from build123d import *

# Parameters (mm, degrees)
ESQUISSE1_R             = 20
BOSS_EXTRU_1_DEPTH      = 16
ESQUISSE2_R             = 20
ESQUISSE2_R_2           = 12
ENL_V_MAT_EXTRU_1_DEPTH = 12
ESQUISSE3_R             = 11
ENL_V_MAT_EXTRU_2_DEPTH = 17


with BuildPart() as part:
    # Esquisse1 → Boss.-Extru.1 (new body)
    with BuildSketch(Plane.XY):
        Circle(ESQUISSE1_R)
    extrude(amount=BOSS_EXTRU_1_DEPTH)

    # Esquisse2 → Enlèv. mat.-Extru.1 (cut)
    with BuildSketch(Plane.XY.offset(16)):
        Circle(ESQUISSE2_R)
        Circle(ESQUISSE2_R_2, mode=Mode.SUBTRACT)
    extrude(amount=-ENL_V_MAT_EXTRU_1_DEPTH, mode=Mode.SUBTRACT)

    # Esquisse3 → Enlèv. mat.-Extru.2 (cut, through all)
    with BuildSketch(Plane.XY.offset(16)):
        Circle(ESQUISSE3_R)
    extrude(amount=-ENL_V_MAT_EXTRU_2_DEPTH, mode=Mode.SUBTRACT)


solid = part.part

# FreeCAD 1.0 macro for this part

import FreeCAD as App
import Part
import Sketcher
from FreeCAD import Vector
Q = App.Units.Quantity

doc = App.newDocument("Part")
body = doc.addObject("PartDesign::Body", "Body")

sketch1 = body.newObject("Sketcher::SketchObject", "Sketch")
sketch1.AttachmentSupport = (doc.getObject("XY_Plane"), [""])
sketch1.MapMode = "FlatFace"
sketch1.addGeometry(Part.Circle(Vector(0, 0, 0), Vector(0, 0, 1), 20), False)
sketch1.addConstraint([
    Sketcher.Constraint("Coincident", 0, 3, -1, 1),
    Sketcher.Constraint("Diameter", 0, Q("40 mm")),
])
pad1 = body.newObject("PartDesign::Pad", "Pad")
pad1.Profile = sketch1
pad1.Length = 16

sketch2 = body.newObject("Sketcher::SketchObject", "Sketch001")
sketch2.AttachmentSupport = (doc.getObject("XY_Plane"), [""])
sketch2.MapMode = "FlatFace"
sketch2.AttachmentOffset = App.Placement(Vector(0, 0, 16), App.Rotation())
sketch2.addGeometry([
    Part.Circle(Vector(0, 0, 0), Vector(0, 0, 1), 20),
    Part.Circle(Vector(0, 0, 0), Vector(0, 0, 1), 12),
], False)
sketch2.addConstraint([
    Sketcher.Constraint("Coincident", 0, 3, -1, 1),
    Sketcher.Constraint("Coincident", 1, 3, -1, 1),
    Sketcher.Constraint("Diameter", 0, Q("40 mm")),
    Sketcher.Constraint("Diameter", 1, Q("24 mm")),
])
pocket1 = body.newObject("PartDesign::Pocket", "Pocket")
pocket1.Profile = sketch2
pocket1.Length = 12

sketch3 = body.newObject("Sketcher::SketchObject", "Sketch002")
sketch3.AttachmentSupport = (doc.getObject("XY_Plane"), [""])
sketch3.MapMode = "FlatFace"
sketch3.AttachmentOffset = App.Placement(Vector(0, 0, 16), App.Rotation())
sketch3.addGeometry(Part.Circle(Vector(0, 0, 0), Vector(0, 0, 1), 11), False)
sketch3.addConstraint([
    Sketcher.Constraint("Coincident", 0, 3, -1, 1),
    Sketcher.Constraint("Diameter", 0, Q("22 mm")),
])
pocket2 = body.newObject("PartDesign::Pocket", "Pocket001")
pocket2.Profile = sketch3
pocket2.Type = "ThroughAll"

doc.recompute()
